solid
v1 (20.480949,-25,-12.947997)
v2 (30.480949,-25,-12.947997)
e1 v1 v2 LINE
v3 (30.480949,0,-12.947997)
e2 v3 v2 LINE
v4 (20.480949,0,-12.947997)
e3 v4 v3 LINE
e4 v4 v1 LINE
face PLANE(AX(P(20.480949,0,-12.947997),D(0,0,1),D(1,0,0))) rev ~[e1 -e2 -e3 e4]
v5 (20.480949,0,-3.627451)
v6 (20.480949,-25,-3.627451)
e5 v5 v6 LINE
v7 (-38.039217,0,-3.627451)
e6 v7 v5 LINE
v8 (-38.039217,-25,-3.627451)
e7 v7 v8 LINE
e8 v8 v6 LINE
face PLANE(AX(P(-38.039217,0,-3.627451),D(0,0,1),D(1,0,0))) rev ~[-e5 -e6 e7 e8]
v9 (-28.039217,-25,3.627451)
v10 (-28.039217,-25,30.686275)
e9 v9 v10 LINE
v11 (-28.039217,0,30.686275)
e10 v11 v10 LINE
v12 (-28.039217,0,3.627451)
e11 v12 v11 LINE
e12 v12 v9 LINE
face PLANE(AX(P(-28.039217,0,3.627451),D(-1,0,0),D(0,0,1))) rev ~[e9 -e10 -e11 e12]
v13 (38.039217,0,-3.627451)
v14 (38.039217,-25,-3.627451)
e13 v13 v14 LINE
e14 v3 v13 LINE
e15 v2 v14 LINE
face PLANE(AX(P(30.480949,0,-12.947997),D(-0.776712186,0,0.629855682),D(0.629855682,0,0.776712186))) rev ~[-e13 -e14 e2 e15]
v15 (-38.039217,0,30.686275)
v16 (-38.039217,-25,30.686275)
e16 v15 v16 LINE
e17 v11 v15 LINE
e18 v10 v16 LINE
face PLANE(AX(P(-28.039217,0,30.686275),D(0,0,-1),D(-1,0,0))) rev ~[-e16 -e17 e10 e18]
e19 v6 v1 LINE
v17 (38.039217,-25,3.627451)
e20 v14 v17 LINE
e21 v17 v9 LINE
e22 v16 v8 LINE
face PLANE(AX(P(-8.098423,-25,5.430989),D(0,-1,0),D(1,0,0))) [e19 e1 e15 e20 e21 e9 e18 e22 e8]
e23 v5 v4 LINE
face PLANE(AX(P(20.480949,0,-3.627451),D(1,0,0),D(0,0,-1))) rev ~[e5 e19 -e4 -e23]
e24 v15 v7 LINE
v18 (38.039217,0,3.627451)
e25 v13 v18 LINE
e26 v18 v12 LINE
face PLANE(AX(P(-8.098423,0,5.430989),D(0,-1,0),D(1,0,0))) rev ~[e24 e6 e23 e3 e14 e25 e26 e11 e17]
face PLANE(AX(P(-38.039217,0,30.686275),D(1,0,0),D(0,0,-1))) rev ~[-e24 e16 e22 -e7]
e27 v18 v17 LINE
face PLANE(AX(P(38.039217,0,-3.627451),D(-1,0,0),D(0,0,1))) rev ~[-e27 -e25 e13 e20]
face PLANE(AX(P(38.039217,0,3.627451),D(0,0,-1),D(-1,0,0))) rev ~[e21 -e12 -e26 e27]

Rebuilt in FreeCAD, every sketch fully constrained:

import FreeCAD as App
import Part
import Sketcher

V = App.Vector

doc = App.newDocument("Part")
body = doc.addObject("PartDesign::Body", "Body")

sketch1 = doc.addObject("Sketcher::SketchObject", "Sketch")
body.addObject(sketch1)
sketch1.AttachmentSupport = (doc.XZ_Plane, [""])
sketch1.MapMode = "FlatFace"
sketch1.addGeometry([
    Part.LineSegment(V(38, -4, 0), V(38, 4, 0)),
    Part.LineSegment(V(38, 4, 0), V(-28, 4, 0)),
    Part.LineSegment(V(-28, 4, 0), V(-28, 31, 0)),
    Part.LineSegment(V(-28, 31, 0), V(-38, 31, 0)),
    Part.LineSegment(V(-38, 31, 0), V(-38, -4, 0)),
    Part.LineSegment(V(-38, -4, 0), V(20, -4, 0)),
    Part.LineSegment(V(20, -4, 0), V(20, -13, 0)),
    Part.LineSegment(V(20, -13, 0), V(30, -13, 0)),
    Part.LineSegment(V(30, -13, 0), V(38, -4, 0)),
], False)
sketch1.addConstraint([
    Sketcher.Constraint("Coincident", 0, 2, 1, 1),
    Sketcher.Constraint("Coincident", 1, 2, 2, 1),
    Sketcher.Constraint("Coincident", 2, 2, 3, 1),
    Sketcher.Constraint("Coincident", 3, 2, 4, 1),
    Sketcher.Constraint("Coincident", 4, 2, 5, 1),
    Sketcher.Constraint("Coincident", 5, 2, 6, 1),
    Sketcher.Constraint("Coincident", 6, 2, 7, 1),
    Sketcher.Constraint("Coincident", 7, 2, 8, 1),
    Sketcher.Constraint("Coincident", 8, 2, 0, 1),
    Sketcher.Constraint("Vertical", 0),
    Sketcher.Constraint("Horizontal", 1),
    Sketcher.Constraint("Vertical", 2),
    Sketcher.Constraint("Horizontal", 3),
    Sketcher.Constraint("Vertical", 4),
    Sketcher.Constraint("Horizontal", 5),
    Sketcher.Constraint("Vertical", 6),
    Sketcher.Constraint("Horizontal", 7),
    Sketcher.Constraint("Symmetric", 0, 2, 4, 2, -1, 1),
    Sketcher.Constraint("Horizontal", 5, 2, 8, 2),
    Sketcher.Constraint("Equal", 3, 7),
    Sketcher.Constraint("DistanceX", 3, 2, 3, 1, 10.0),
    Sketcher.Constraint("Distance", 8, 12.0),
    Sketcher.Constraint("DistanceX", 1, 2, 1, 1, 66.078434),
    Sketcher.Constraint("DistanceX", 5, 1, 5, 2, 58.520166),
    Sketcher.Constraint("DistanceY", 0, 1, 0, 2, 7.254902),
    Sketcher.Constraint("DistanceY", 2, 1, 2, 2, 27.058824),
])
pad1 = doc.addObject("PartDesign::Pad", "Pad")
body.addObject(pad1)
pad1.Profile = sketch1
pad1.Length = 25

doc.recompute()
